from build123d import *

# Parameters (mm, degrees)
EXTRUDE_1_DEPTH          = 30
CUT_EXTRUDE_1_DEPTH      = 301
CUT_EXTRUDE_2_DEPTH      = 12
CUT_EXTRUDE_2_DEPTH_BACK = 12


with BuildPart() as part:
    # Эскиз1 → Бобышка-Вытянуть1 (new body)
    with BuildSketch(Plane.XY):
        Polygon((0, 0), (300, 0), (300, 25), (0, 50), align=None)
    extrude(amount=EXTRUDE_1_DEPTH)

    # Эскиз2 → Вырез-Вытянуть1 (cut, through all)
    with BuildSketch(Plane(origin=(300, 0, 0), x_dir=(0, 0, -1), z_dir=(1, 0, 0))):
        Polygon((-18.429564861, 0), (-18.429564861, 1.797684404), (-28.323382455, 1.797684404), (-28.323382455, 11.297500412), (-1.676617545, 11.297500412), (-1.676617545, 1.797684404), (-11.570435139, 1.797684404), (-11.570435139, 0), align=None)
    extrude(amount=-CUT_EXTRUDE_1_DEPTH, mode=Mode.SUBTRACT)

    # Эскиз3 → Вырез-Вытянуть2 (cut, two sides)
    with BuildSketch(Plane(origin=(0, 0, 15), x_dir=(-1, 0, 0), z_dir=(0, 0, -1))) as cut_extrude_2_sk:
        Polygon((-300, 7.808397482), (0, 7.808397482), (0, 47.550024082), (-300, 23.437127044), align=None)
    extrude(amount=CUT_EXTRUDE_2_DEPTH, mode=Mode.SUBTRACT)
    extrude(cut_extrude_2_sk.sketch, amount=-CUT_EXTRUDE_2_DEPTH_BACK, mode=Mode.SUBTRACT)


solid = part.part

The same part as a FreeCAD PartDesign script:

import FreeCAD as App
import Part
import Sketcher

V = App.Vector

doc = App.newDocument("Part")
body = doc.addObject("PartDesign::Body", "Body")

sketch1 = doc.addObject("Sketcher::SketchObject", "Sketch")
body.addObject(sketch1)
sketch1.AttachmentSupport = (doc.XY_Plane, [""])
sketch1.MapMode = "FlatFace"
sketch1.addGeometry([
    Part.LineSegment(V(0, 0, 0), V(300, 0, 0)),
    Part.LineSegment(V(300, 0, 0), V(300, 25, 0)),
    Part.LineSegment(V(300, 25, 0), V(0, 50, 0)),
    Part.LineSegment(V(0, 50, 0), V(0, 0, 0)),
], False)
sketch1.addConstraint([
    Sketcher.Constraint("Coincident", 0, 2, 1, 1),
    Sketcher.Constraint("Coincident", 1, 2, 2, 1),
    Sketcher.Constraint("Coincident", 2, 2, 3, 1),
    Sketcher.Constraint("Coincident", 3, 2, 0, 1),
    Sketcher.Constraint("Horizontal", 0),
    Sketcher.Constraint("Vertical", 1),
    Sketcher.Constraint("Vertical", 3),
    Sketcher.Constraint("Coincident", 3, 2, -1, 1),
    Sketcher.Constraint("DistanceX", 0, 1, 0, 2, 300.0),
    Sketcher.Constraint("DistanceY", 1, 1, 1, 2, 25.0),
    Sketcher.Constraint("DistanceY", 3, 2, 3, 1, 50.0),
])
pad1 = doc.addObject("PartDesign::Pad", "Pad")
body.addObject(pad1)
pad1.Profile = sketch1
pad1.Length = 30

sketch2 = doc.addObject("Sketcher::SketchObject", "Sketch001")
body.addObject(sketch2)
sketch2.AttachmentSupport = (doc.YZ_Plane, [""])
sketch2.MapMode = "FlatFace"
sketch2.AttachmentOffset = App.Placement(V(0, 0, 300), App.Rotation())
sketch2.addGeometry([
    Part.LineSegment(V(1.8, 18.4, 0), V(0, 18.4, 0)),
    Part.LineSegment(V(0, 18.4, 0), V(0, 11.6, 0)),
    Part.LineSegment(V(0, 11.6, 0), V(1.8, 11.6, 0)),
    Part.LineSegment(V(1.8, 11.6, 0), V(1.8, 1.7, 0)),
    Part.LineSegment(V(1.8, 1.7, 0), V(11.3, 1.7, 0)),
    Part.LineSegment(V(11.3, 1.7, 0), V(11.3, 28.3, 0)),
    Part.LineSegment(V(11.3, 28.3, 0), V(1.8, 28.3, 0)),
    Part.LineSegment(V(1.8, 28.3, 0), V(1.8, 18.4, 0)),
], False)
sketch2.addConstraint([
    Sketcher.Constraint("Coincident", 0, 2, 1, 1),
    Sketcher.Constraint("Coincident", 1, 2, 2, 1),
    Sketcher.Constraint("Coincident", 2, 2, 3, 1),
    Sketcher.Constraint("Coincident", 3, 2, 4, 1),
    Sketcher.Constraint("Coincident", 4, 2, 5, 1),
    Sketcher.Constraint("Coincident", 5, 2, 6, 1),
    Sketcher.Constraint("Coincident", 6, 2, 7, 1),
    Sketcher.Constraint("Coincident", 7, 2, 0, 1),
    Sketcher.Constraint("Horizontal", 0),
    Sketcher.Constraint("Vertical", 1),
    Sketcher.Constraint("Horizontal", 2),
    Sketcher.Constraint("Vertical", 3),
    Sketcher.Constraint("Horizontal", 4),
    Sketcher.Constraint("Vertical", 5),
    Sketcher.Constraint("Horizontal", 6),
    Sketcher.Constraint("Vertical", 7),
    Sketcher.Constraint("PointOnObject", 0, 2, -2),
    Sketcher.Constraint("Vertical", 3, 2, 6, 2),
    Sketcher.Constraint("Equal", 3, 7),
    Sketcher.Constraint("DistanceY", 1, 2, 1, 1, 6.85913),
    Sketcher.Constraint("DistanceX", -1, 1, 4, 2, 11.2975),
    Sketcher.Constraint("DistanceX", 0, 2, 0, 1, 1.797684),
    Sketcher.Constraint("DistanceY", 3, 2, 3, 1, 9.893818),
    Sketcher.Constraint("DistanceY", -1, 1, 0, 2, 18.429565),
])
pocket1 = doc.addObject("PartDesign::Pocket", "Pocket")
body.addObject(pocket1)
pocket1.Profile = sketch2
pocket1.Type = "ThroughAll"

sketch3 = doc.addObject("Sketcher::SketchObject", "Sketch002")
body.addObject(sketch3)
sketch3.AttachmentSupport = (doc.XY_Plane, [""])
sketch3.MapMode = "FlatFace"
sketch3.AttachmentOffset = App.Placement(V(0, 0, 15), App.Rotation())
sketch3.addGeometry([
    Part.LineSegment(V(300, 8, 0), V(0, 8, 0)),
    Part.LineSegment(V(0, 8, 0), V(0, 48, 0)),
    Part.LineSegment(V(0, 48, 0), V(300, 23, 0)),
    Part.LineSegment(V(300, 23, 0), V(300, 8, 0)),
], False)
sketch3.addConstraint([
    Sketcher.Constraint("Coincident", 0, 2, 1, 1),
    Sketcher.Constraint("Coincident", 1, 2, 2, 1),
    Sketcher.Constraint("Coincident", 2, 2, 3, 1),
    Sketcher.Constraint("Coincident", 3, 2, 0, 1),
    Sketcher.Constraint("Horizontal", 0),
    Sketcher.Constraint("Vertical", 1),
    Sketcher.Constraint("Vertical", 3),
    Sketcher.Constraint("PointOnObject", 0, 2, -2),
    Sketcher.Constraint("DistanceX", 0, 2, 0, 1, 300.0),
    Sketcher.Constraint("DistanceY", 3, 2, 3, 1, 15.62873),
    Sketcher.Constraint("DistanceY", 1, 1, 1, 2, 39.741627),
    Sketcher.Constraint("DistanceY", -1, 1, 0, 2, 7.808397),
])
pocket2 = doc.addObject("PartDesign::Pocket", "Pocket001")
body.addObject(pocket2)
pocket2.Profile = sketch3
pocket2.Type = "TwoLengths"
pocket2.Length = 12
pocket2.Length2 = 12

doc.recompute()
